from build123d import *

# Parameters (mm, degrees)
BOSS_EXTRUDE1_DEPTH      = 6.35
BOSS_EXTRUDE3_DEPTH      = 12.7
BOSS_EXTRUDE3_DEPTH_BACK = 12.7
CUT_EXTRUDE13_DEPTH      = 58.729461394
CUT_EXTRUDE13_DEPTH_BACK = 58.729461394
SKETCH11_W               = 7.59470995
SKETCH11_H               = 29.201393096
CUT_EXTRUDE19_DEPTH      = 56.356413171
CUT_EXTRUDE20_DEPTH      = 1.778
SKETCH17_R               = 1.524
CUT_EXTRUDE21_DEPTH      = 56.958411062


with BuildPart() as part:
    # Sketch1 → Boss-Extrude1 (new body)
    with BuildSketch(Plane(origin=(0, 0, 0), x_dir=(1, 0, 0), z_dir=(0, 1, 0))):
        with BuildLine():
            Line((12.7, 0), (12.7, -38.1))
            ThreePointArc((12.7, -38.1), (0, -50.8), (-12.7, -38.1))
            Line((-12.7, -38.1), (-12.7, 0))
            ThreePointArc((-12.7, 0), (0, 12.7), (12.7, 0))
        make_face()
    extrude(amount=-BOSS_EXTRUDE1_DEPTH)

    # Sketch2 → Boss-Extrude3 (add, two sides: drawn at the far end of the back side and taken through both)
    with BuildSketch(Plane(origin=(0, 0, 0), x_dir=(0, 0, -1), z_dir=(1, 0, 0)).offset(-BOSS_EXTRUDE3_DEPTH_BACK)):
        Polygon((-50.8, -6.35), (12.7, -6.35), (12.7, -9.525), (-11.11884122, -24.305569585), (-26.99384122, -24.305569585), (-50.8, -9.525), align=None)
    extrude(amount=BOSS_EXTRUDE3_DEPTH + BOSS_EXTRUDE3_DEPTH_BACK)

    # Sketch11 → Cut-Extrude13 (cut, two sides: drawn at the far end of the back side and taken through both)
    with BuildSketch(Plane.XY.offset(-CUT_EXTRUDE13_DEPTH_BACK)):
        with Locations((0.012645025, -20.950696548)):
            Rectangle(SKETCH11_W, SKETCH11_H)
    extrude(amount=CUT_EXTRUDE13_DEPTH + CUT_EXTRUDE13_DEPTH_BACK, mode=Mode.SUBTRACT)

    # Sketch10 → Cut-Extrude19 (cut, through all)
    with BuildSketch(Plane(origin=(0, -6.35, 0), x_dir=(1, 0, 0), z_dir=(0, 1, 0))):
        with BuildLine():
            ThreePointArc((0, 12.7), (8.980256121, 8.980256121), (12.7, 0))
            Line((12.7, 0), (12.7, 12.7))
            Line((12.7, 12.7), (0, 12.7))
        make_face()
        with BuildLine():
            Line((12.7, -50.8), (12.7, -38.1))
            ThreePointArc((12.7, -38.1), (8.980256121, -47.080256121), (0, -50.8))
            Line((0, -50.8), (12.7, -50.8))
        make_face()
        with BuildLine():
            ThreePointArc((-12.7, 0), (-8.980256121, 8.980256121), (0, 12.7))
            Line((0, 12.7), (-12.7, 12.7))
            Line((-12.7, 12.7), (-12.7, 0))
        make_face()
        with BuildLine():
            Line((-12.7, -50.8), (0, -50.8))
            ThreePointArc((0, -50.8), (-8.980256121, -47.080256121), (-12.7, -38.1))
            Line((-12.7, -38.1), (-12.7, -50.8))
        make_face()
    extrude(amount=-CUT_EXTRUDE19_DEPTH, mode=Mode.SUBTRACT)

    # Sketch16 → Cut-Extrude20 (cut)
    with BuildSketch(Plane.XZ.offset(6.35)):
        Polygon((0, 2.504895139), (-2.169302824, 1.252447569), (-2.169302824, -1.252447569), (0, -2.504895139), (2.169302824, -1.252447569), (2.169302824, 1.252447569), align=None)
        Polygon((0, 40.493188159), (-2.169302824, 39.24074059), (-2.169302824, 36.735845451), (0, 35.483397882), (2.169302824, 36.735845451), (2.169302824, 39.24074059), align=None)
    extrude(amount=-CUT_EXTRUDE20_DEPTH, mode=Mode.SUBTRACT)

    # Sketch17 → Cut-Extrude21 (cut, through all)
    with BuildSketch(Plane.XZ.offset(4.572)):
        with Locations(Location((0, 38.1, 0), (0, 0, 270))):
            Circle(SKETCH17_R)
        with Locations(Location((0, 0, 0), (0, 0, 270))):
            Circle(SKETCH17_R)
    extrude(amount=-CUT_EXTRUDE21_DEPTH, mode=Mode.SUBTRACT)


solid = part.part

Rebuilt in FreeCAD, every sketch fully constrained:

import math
import FreeCAD as App
import Part
import Sketcher
Q = App.Units.Quantity


def add_polygon(sketch, points):
    """Adds a closed chain of lines whose ends are joined by coincident constraints."""
    first, n = sketch.GeometryCount, len(points)
    for a, b in zip(points, points[1:] + points[:1]):
        sketch.addGeometry(Part.LineSegment(App.Vector(*a, 0), App.Vector(*b, 0)), False)
    for i in range(n):
        sketch.addConstraint(Sketcher.Constraint("Coincident", first + i, 2, first + (i + 1) % n, 1))

doc = App.newDocument("Part")
body = doc.addObject("PartDesign::Body", "Body")

# Sketch on XZ plane
sketch1 = body.newObject("Sketcher::SketchObject", "Sketch")
sketch1.AttachmentSupport = (doc.getObject("XZ_Plane"), [""])
sketch1.MapMode = "FlatFace"
sketch1.addGeometry([
    Part.LineSegment(App.Vector(13, 38, 0), App.Vector(13, 0, 0)),
    Part.ArcOfCircle(Part.Circle(App.Vector(0, 0, 0), App.Vector(0, 0, 1), 13), math.radians(180), math.radians(360)),
    Part.LineSegment(App.Vector(-13, 0, 0), App.Vector(-13, 38, 0)),
    Part.ArcOfCircle(Part.Circle(App.Vector(0, 38, 0), App.Vector(0, 0, 1), 13), math.radians(0), math.radians(180)),
], False)
sketch1.addConstraint([
    Sketcher.Constraint("Tangent", 0, 2, 1, 2),
    Sketcher.Constraint("Tangent", 1, 1, 2, 1),
    Sketcher.Constraint("Tangent", 2, 2, 3, 2),
    Sketcher.Constraint("Tangent", 3, 1, 0, 1),
    Sketcher.Constraint("Vertical", 0),
    Sketcher.Constraint("Vertical", 2),
    Sketcher.Constraint("Coincident", 1, 3, -1, 1),
    Sketcher.Constraint("Radius", 1, Q("0.5 in")),
    Sketcher.Constraint("DistanceY", 0, 2, 0, 1, Q("1.5 in")),
])
pad1 = body.newObject("PartDesign::Pad", "Pad")
pad1.Profile = sketch1
pad1.Length = Q("0.25 in")

# Sketch on YZ plane
sketch2 = body.newObject("Sketcher::SketchObject", "Sketch001")
sketch2.AttachmentSupport = (doc.getObject("YZ_Plane"), [""])
sketch2.MapMode = "FlatFace"
add_polygon(sketch2, [(-6.3, -12.7), (-6.3, 50.8), (-9.5, 50.8), (-24.3, 27), (-24.3, 11.1), (-9.5, -12.7)])  # lines 0-5
sketch2.addConstraint([
    Sketcher.Constraint("Vertical", 0),
    Sketcher.Constraint("Horizontal", 1),
    Sketcher.Constraint("Vertical", 3),
    Sketcher.Constraint("Horizontal", 5),
    Sketcher.Constraint("Vertical", 1, 2, 4, 2),
    Sketcher.Constraint("DistanceY", 0, 1, 0, 2, Q("2.5 in")),
    Sketcher.Constraint("DistanceY", -1, 1, 0, 2, Q("2 in")),
    Sketcher.Constraint("DistanceX", 1, 2, 1, 1, Q("0.125 in")),
    Sketcher.Constraint("DistanceY", 3, 2, 3, 1, Q("0.625 in")),
    Sketcher.Constraint("DistanceX", 0, 2, -1, 1, Q("0.25 in")),
    Sketcher.Constraint("DistanceX", 2, 2, -1, 1, Q("24.30557 mm")),
    Sketcher.Constraint("DistanceY", -1, 1, 2, 2, Q("26.993841 mm")),
])
pad2 = body.newObject("PartDesign::Pad", "Pad001")
pad2.Profile = sketch2
pad2.Type = "TwoLengths"
pad2.Length = Q("0.5 in")
pad2.Length2 = Q("0.5 in")

# Sketch on XY plane
sketch3 = body.newObject("Sketcher::SketchObject", "Sketch002")
sketch3.AttachmentSupport = (doc.getObject("XY_Plane"), [""])
sketch3.MapMode = "FlatFace"
add_polygon(sketch3, [(-4, -6), (-4, -36), (4, -36), (4, -6)])  # lines 0-3
sketch3.addConstraint([
    Sketcher.Constraint("Vertical", 0),
    Sketcher.Constraint("Horizontal", 1),
    Sketcher.Constraint("Vertical", 2),
    Sketcher.Constraint("Horizontal", 3),
    Sketcher.Constraint("DistanceX", -1, 1, 1, 2, Q("0.15 in")),
    Sketcher.Constraint("DistanceY", 2, 2, -1, 1, Q("0.25 in")),
    Sketcher.Constraint("DistanceX", 1, 1, 1, 2, Q("7.59471 mm")),
    Sketcher.Constraint("DistanceY", 0, 2, 0, 1, Q("29.201393 mm")),
])
pocket1 = body.newObject("PartDesign::Pocket", "Pocket")
pocket1.Profile = sketch3
pocket1.Type = "ThroughAll"
pocket1.Midplane = True

# Sketch on XZ plane
sketch4 = body.newObject("Sketcher::SketchObject", "Sketch003")
sketch4.AttachmentSupport = (doc.getObject("XZ_Plane"), [""])
sketch4.MapMode = "FlatFace"
sketch4.AttachmentOffset = App.Placement(App.Vector(0, 0, 0.25 * 25.4), App.Rotation())
sketch4.addGeometry([
    Part.ArcOfCircle(Part.Circle(App.Vector(0, 0, 0), App.Vector(0, 0, 1), 13), math.radians(-90), math.radians(0)),  # 0
    Part.LineSegment(App.Vector(13, 0, 0), App.Vector(13, -13, 0)),  # 1
    Part.LineSegment(App.Vector(13, -13, 0), App.Vector(0, -13, 0)),  # 2
    Part.LineSegment(App.Vector(13, 51, 0), App.Vector(13, 38, 0)),  # 3
    Part.ArcOfCircle(Part.Circle(App.Vector(0, 38, 0), App.Vector(0, 0, 1), 13), math.radians(0), math.radians(90)),  # 4
    Part.LineSegment(App.Vector(0, 51, 0), App.Vector(13, 51, 0)),  # 5
    Part.ArcOfCircle(Part.Circle(App.Vector(0, 0, 0), App.Vector(0, 0, 1), 13), math.radians(180), math.radians(270)),  # 6
    Part.LineSegment(App.Vector(0, -13, 0), App.Vector(-13, -13, 0)),  # 7
    Part.LineSegment(App.Vector(-13, -13, 0), App.Vector(-13, 0, 0)),  # 8
    Part.LineSegment(App.Vector(-13, 51, 0), App.Vector(0, 51, 0)),  # 9
    Part.ArcOfCircle(Part.Circle(App.Vector(0, 38, 0), App.Vector(0, 0, 1), 13), math.radians(90), math.radians(180)),  # 10
    Part.LineSegment(App.Vector(-13, 38, 0), App.Vector(-13, 51, 0)),  # 11
], False)
sketch4.addConstraint([
    Sketcher.Constraint("Tangent", 0, 2, 1, 1),
    Sketcher.Constraint("Coincident", 1, 2, 2, 1),
    Sketcher.Constraint("Tangent", 2, 2, 0, 1),
    Sketcher.Constraint("Tangent", 3, 2, 4, 1),
    Sketcher.Constraint("Tangent", 4, 2, 5, 1),
    Sketcher.Constraint("Coincident", 5, 2, 3, 1),
    Sketcher.Constraint("Tangent", 6, 2, 7, 1),
    Sketcher.Constraint("Coincident", 7, 2, 8, 1),
    Sketcher.Constraint("Tangent", 8, 2, 6, 1),
    Sketcher.Constraint("Tangent", 9, 2, 10, 1),
    Sketcher.Constraint("Tangent", 10, 2, 11, 1),
    Sketcher.Constraint("Coincident", 11, 2, 9, 1),
    Sketcher.Constraint("Vertical", 1),
    Sketcher.Constraint("Horizontal", 2),
    Sketcher.Constraint("Vertical", 3),
    Sketcher.Constraint("Horizontal", 5),
    Sketcher.Constraint("Horizontal", 7),
    Sketcher.Constraint("Vertical", 8),
    Sketcher.Constraint("Horizontal", 9),
    Sketcher.Constraint("Vertical", 11),
    Sketcher.Constraint("Coincident", 0, 3, -1, 1),
    Sketcher.Constraint("Coincident", 6, 3, -1, 1),
    Sketcher.Constraint("Coincident", 10, 3, 4, 3),
    Sketcher.Constraint("Equal", 0, 4),
    Sketcher.Constraint("Equal", 4, 6),
    Sketcher.Constraint("Equal", 6, 10),
    Sketcher.Constraint("PointOnObject", 4, 3, -2),
    Sketcher.Constraint("Radius", 0, Q("0.5 in")),
    Sketcher.Constraint("DistanceY", -1, 1, 4, 2, Q("2 in")),
])
pocket2 = body.newObject("PartDesign::Pocket", "Pocket001")
pocket2.Profile = sketch4
pocket2.Type = "ThroughAll"
pocket2.Reversed = True

# Sketch on XZ plane
sketch5 = body.newObject("Sketcher::SketchObject", "Sketch004")
sketch5.AttachmentSupport = (doc.getObject("XZ_Plane"), [""])
sketch5.MapMode = "FlatFace"
sketch5.AttachmentOffset = App.Placement(App.Vector(0, 0, 0.25 * 25.4), App.Rotation())
add_polygon(sketch5, [(0, 2.5), (-2.2, 1.3), (-2.2, -1.3), (0, -2.5), (2.2, -1.3), (2.2, 1.3)])  # lines 0-5
add_polygon(sketch5, [(0, 40.5), (-2.2, 39.2), (-2.2, 36.7), (0, 35.5), (2.2, 36.7), (2.2, 39.2)])  # lines 6-11
sketch5.addConstraint([
    Sketcher.Constraint("Vertical", 1),
    Sketcher.Constraint("Vertical", 4),
    Sketcher.Constraint("Vertical", 7),
    Sketcher.Constraint("Vertical", 10),
    Sketcher.Constraint("Symmetric", 0, 2, 3, 2, -1, 1),
    Sketcher.Constraint("Symmetric", 2, 2, 5, 2, -1, 1),
    Sketcher.Constraint("Symmetric", 7, 2, 9, 2, -2),
    Sketcher.Constraint("PointOnObject", 2, 2, -2),
    Sketcher.Constraint("PointOnObject", 8, 2, -2),
    Sketcher.Constraint("PointOnObject", 11, 2, -2),
    Sketcher.Constraint("Parallel", 2, 5),
    Sketcher.Constraint("Parallel", 3, 6),
    Sketcher.Constraint("Parallel", 5, 8),
    Sketcher.Constraint("Parallel", 6, 9),
    Sketcher.Constraint("Parallel", 8, 11),
    Sketcher.Constraint("Vertical", 1, 2, 6, 2),
    Sketcher.Constraint("Equal", 4, 7),
    Sketcher.Constraint("Angle", 0, Q("-150 deg")),
    Sketcher.Constraint("DistanceY", 1, 2, 1, 1, Q("2.504895 mm")),
    Sketcher.Constraint("DistanceY", -1, 1, 6, 2, Q("39.240741 mm")),
    Sketcher.Constraint("DistanceY", -1, 1, 11, 2, Q("40.493188 mm")),
])
pocket3 = body.newObject("PartDesign::Pocket", "Pocket002")
pocket3.Profile = sketch5
pocket3.Length = Q("0.07 in")

# Sketch on XZ plane
sketch6 = body.newObject("Sketcher::SketchObject", "Sketch005")
sketch6.AttachmentSupport = (doc.getObject("XZ_Plane"), [""])
sketch6.MapMode = "FlatFace"
sketch6.AttachmentOffset = App.Placement(App.Vector(0, 0, 0.18 * 25.4), App.Rotation())
sketch6.addGeometry([
    Part.Circle(App.Vector(0, 38.1, 0), App.Vector(0, 0, 1), 1.5),
    Part.Circle(App.Vector(0, 0, 0), App.Vector(0, 0, 1), 1.5),
], False)
sketch6.addConstraint([
    Sketcher.Constraint("Coincident", 1, 3, -1, 1),
    Sketcher.Constraint("Equal", 0, 1),
    Sketcher.Constraint("PointOnObject", 0, 3, -2),
    Sketcher.Constraint("Diameter", 0, Q("0.12 in")),
    Sketcher.Constraint("DistanceY", -1, 1, 0, 3, Q("1.5 in")),
])
pocket4 = body.newObject("PartDesign::Pocket", "Pocket003")
pocket4.Profile = sketch6
pocket4.Type = "ThroughAll"

doc.recompute()
